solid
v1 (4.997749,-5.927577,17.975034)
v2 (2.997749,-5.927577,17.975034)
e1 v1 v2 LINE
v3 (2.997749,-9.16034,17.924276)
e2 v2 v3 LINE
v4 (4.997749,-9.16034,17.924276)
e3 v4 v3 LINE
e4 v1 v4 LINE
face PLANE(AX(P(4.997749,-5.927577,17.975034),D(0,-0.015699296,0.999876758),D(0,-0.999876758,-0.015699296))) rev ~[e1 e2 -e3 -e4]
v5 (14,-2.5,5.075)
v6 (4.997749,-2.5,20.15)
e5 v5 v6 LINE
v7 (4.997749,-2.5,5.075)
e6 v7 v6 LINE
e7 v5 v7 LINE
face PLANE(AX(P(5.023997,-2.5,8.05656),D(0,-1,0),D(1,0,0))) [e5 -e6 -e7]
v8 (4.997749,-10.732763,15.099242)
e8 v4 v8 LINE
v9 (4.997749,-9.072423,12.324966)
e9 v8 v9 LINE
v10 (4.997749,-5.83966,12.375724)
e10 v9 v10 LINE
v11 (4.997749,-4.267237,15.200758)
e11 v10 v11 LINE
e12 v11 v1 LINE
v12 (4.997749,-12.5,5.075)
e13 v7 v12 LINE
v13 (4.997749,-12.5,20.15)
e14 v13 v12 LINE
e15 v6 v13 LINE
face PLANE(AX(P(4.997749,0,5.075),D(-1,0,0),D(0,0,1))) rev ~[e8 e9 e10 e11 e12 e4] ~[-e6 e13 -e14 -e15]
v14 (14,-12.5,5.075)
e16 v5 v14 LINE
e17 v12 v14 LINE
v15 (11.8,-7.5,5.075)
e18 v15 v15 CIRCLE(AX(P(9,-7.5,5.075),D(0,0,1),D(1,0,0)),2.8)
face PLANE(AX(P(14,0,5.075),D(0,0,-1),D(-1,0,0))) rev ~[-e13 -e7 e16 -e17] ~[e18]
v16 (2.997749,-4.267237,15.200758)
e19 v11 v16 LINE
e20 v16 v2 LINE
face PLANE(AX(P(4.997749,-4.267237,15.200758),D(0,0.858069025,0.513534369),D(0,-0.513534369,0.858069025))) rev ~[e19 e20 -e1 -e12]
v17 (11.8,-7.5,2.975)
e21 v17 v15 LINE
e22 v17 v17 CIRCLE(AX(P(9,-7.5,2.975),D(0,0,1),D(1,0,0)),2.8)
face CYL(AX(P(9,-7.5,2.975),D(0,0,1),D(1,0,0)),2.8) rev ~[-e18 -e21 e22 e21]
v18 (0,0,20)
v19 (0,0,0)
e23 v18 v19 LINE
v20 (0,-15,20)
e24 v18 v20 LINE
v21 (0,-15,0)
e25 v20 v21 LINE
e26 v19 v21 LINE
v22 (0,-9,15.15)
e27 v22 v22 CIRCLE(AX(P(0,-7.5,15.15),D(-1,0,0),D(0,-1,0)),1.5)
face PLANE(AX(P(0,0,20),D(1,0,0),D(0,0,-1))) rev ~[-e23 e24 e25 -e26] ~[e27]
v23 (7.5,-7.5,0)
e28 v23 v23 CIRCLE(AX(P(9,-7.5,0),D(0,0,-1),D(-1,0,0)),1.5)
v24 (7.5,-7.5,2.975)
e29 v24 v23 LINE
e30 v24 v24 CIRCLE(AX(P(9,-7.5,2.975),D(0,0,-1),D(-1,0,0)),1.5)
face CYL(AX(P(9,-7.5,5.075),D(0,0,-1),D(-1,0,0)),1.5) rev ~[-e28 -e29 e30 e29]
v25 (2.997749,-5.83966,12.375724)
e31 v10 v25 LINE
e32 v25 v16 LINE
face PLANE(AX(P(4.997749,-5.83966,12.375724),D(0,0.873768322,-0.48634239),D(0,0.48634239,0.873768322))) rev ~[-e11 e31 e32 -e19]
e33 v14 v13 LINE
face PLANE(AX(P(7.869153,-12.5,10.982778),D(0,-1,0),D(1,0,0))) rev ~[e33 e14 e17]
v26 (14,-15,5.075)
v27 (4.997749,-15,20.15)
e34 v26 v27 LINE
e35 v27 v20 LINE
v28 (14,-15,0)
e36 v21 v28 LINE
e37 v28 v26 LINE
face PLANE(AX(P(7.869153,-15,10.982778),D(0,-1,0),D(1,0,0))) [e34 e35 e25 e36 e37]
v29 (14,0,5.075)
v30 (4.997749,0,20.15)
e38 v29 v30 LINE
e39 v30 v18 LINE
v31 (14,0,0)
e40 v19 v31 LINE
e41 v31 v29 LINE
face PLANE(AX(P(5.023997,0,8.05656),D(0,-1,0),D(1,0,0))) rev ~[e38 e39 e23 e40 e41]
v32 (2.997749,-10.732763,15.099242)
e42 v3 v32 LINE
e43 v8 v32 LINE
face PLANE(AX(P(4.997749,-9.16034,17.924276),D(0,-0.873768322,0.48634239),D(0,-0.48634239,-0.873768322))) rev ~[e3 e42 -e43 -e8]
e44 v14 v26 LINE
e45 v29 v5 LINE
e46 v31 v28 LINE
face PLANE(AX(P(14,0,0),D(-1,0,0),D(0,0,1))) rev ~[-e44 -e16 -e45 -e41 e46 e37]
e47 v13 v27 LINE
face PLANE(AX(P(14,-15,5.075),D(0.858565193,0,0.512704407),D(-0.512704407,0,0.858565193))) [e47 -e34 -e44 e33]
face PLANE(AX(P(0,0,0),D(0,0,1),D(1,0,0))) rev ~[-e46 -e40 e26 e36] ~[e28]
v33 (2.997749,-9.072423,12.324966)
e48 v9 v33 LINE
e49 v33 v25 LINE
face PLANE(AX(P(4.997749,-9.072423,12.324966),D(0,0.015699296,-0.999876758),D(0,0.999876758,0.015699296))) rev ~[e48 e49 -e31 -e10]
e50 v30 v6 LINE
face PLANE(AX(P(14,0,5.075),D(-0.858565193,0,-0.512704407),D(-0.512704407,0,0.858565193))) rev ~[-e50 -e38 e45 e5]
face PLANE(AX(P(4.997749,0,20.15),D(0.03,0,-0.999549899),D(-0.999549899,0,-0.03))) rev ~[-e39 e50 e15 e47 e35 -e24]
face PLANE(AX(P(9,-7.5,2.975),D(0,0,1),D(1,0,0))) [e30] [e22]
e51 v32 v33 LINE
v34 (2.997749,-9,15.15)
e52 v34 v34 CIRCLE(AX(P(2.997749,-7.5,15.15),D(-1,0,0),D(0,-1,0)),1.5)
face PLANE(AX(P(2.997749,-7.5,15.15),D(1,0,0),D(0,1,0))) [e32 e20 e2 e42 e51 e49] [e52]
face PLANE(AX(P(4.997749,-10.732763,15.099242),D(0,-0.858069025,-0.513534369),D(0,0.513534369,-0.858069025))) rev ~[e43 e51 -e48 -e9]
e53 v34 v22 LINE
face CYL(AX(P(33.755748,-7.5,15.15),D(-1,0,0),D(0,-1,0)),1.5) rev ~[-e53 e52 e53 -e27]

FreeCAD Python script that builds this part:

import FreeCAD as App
import Part
import Sketcher

V = App.Vector

doc = App.newDocument("Part")
body = doc.addObject("PartDesign::Body", "Body")

sketch1 = body.newObject("Sketcher::SketchObject", "Sketch")
sketch1.AttachmentSupport = (doc.getObject("XZ_Plane"), [""])
sketch1.MapMode = "FlatFace"
sketch1.addGeometry([
    Part.LineSegment(V(5, 20.1, 0), V(0, 20, 0)),
    Part.LineSegment(V(0, 20, 0), V(0, 0, 0)),
    Part.LineSegment(V(0, 0, 0), V(14, 0, 0)),
    Part.LineSegment(V(14, 0, 0), V(14, 5.1, 0)),
    Part.LineSegment(V(14, 5.1, 0), V(5, 5.1, 0)),
    Part.LineSegment(V(5, 5.1, 0), V(5, 20.1, 0)),
], False)
sketch1.addConstraint([
    Sketcher.Constraint("Coincident", 0, 2, 1, 1),
    Sketcher.Constraint("Coincident", 1, 2, 2, 1),
    Sketcher.Constraint("Coincident", 2, 2, 3, 1),
    Sketcher.Constraint("Coincident", 3, 2, 4, 1),
    Sketcher.Constraint("Coincident", 4, 2, 5, 1),
    Sketcher.Constraint("Coincident", 5, 2, 0, 1),
    Sketcher.Constraint("Vertical", 1),
    Sketcher.Constraint("Horizontal", 2),
    Sketcher.Constraint("Vertical", 3),
    Sketcher.Constraint("Horizontal", 4),
    Sketcher.Constraint("Vertical", 5),
    Sketcher.Constraint("Coincident", 1, 2, -1, 1),
    Sketcher.Constraint("DistanceX", 2, 1, 2, 2, 14.0),
    Sketcher.Constraint("DistanceY", 1, 2, 1, 1, 20.0),
    Sketcher.Constraint("Distance", 0, 5.0),
    Sketcher.Constraint("DistanceY", 3, 1, 3, 2, 5.075),
    Sketcher.Constraint("DistanceY", 5, 1, 5, 2, 15.075),
])
pad1 = body.newObject("PartDesign::Pad", "Pad")
pad1.Profile = sketch1
pad1.Length = 15

sketch2 = body.newObject("Sketcher::SketchObject", "Sketch001")
sketch2.AttachmentSupport = (doc.getObject("XZ_Plane"), [""])
sketch2.MapMode = "FlatFace"
sketch2.addGeometry([
    Part.LineSegment(V(5, 20.1, 0), V(0, 20, 0)),
    Part.LineSegment(V(0, 20, 0), V(0, 0, 0)),
    Part.LineSegment(V(0, 0, 0), V(14, 0, 0)),
    Part.LineSegment(V(14, 0, 0), V(14, 5.1, 0)),
    Part.LineSegment(V(14, 5.1, 0), V(5, 20.1, 0)),
], False)
sketch2.addConstraint([
    Sketcher.Constraint("Coincident", 0, 2, 1, 1),
    Sketcher.Constraint("Coincident", 1, 2, 2, 1),
    Sketcher.Constraint("Coincident", 2, 2, 3, 1),
    Sketcher.Constraint("Coincident", 3, 2, 4, 1),
    Sketcher.Constraint("Coincident", 4, 2, 0, 1),
    Sketcher.Constraint("Vertical", 1),
    Sketcher.Constraint("Horizontal", 2),
    Sketcher.Constraint("Vertical", 3),
    Sketcher.Constraint("Coincident", 1, 2, -1, 1),
    Sketcher.Constraint("DistanceX", 2, 1, 2, 2, 14.0),
    Sketcher.Constraint("DistanceY", 1, 2, 1, 1, 20.0),
    Sketcher.Constraint("Distance", 0, 5.0),
    Sketcher.Constraint("DistanceY", 3, 1, 3, 2, 5.075),
    Sketcher.Constraint("DistanceY", -1, 1, 4, 2, 20.15),
])
pad2 = body.newObject("PartDesign::Pad", "Pad001")
pad2.Profile = sketch2
pad2.Length = 2.5

sketch3 = body.newObject("Sketcher::SketchObject", "Sketch002")
sketch3.AttachmentSupport = (doc.getObject("XZ_Plane"), [""])
sketch3.MapMode = "FlatFace"
sketch3.AttachmentOffset = App.Placement(V(0, 0, 15), App.Rotation())
sketch3.addGeometry([
    Part.LineSegment(V(14, 5, 0), V(5, 20, 0)),
    Part.LineSegment(V(5, 20, 0), V(5, 5, 0)),
    Part.LineSegment(V(5, 5, 0), V(14, 5, 0)),
], False)
sketch3.addConstraint([
    Sketcher.Constraint("Coincident", 0, 2, 1, 1),
    Sketcher.Constraint("Coincident", 1, 2, 2, 1),
    Sketcher.Constraint("Coincident", 2, 2, 0, 1),
    Sketcher.Constraint("Vertical", 1),
    Sketcher.Constraint("Horizontal", 2),
    Sketcher.Constraint("DistanceX", -1, 1, 2, 2, 14.0),
    Sketcher.Constraint("DistanceY", 1, 2, 1, 1, 15.075),
    Sketcher.Constraint("DistanceY", -1, 1, 0, 2, 20.15),
    Sketcher.Constraint("DistanceX", 2, 1, 2, 2, 9.002251),
])
pad3 = body.newObject("PartDesign::Pad", "Pad002")
pad3.Profile = sketch3
pad3.Length = 2.5
pad3.Reversed = True

sketch4 = body.newObject("Sketcher::SketchObject", "Sketch003")
sketch4.AttachmentSupport = (doc.getObject("XY_Plane"), [""])
sketch4.MapMode = "FlatFace"
sketch4.AttachmentOffset = App.Placement(V(0, 0, 5.075), App.Rotation())
sketch4.addGeometry(Part.Circle(V(9, -7.5, 0), V(0, 0, 1), 1.5), False)
sketch4.addConstraint([
    Sketcher.Constraint("Diameter", 0, 3.0),
    Sketcher.Constraint("DistanceX", -1, 1, 0, 3, 9.0),
    Sketcher.Constraint("DistanceY", 0, 3, -1, 1, 7.5),
])
doc.recompute()
hole = body.newObject("PartDesign::Hole", "Hole")
hole.Profile = sketch4
hole.ThreadType = "None"
hole.Diameter = 3
hole.DepthType = "ThroughAll"
hole.HoleCutType = "Counterbore"
hole.HoleCutDiameter = 5.6
hole.HoleCutDepth = 2.1

sketch5 = body.newObject("Sketcher::SketchObject", "Sketch004")
sketch5.AttachmentSupport = (doc.getObject("YZ_Plane"), [""])
sketch5.MapMode = "FlatFace"
sketch5.AttachmentOffset = App.Placement(V(0, 0, 4.997749), App.Rotation())
sketch5.addGeometry(Part.Circle(V(-7.5, 15.2, 0), V(0, 0, 1), 1.5), False)
sketch5.addConstraint([
    Sketcher.Constraint("Diameter", 0, 3.0),
    Sketcher.Constraint("DistanceX", 0, 3, -1, 1, 7.5),
    Sketcher.Constraint("DistanceY", -1, 1, 0, 3, 15.15),
])
doc.recompute()
hole2 = body.newObject("PartDesign::Hole", "Hole001")
hole2.Profile = sketch5
hole2.ThreadType = "None"
hole2.Diameter = 3
hole2.DepthType = "ThroughAll"

sketch6 = body.newObject("Sketcher::SketchObject", "Sketch005")
sketch6.AttachmentSupport = (doc.getObject("YZ_Plane"), [""])
sketch6.MapMode = "FlatFace"
sketch6.AttachmentOffset = App.Placement(V(0, 0, 4.997749), App.Rotation())
sketch6.addGeometry([
    Part.LineSegment(V(-9.2, 17.9, 0), V(-10.7, 15.1, 0)),
    Part.LineSegment(V(-10.7, 15.1, 0), V(-9.1, 12.3, 0)),
    Part.LineSegment(V(-9.1, 12.3, 0), V(-5.8, 12.4, 0)),
    Part.LineSegment(V(-5.8, 12.4, 0), V(-4.3, 15.2, 0)),
    Part.LineSegment(V(-4.3, 15.2, 0), V(-5.9, 18, 0)),
    Part.LineSegment(V(-5.9, 18, 0), V(-9.2, 17.9, 0)),
], False)
sketch6.addConstraint([
    Sketcher.Constraint("Coincident", 0, 2, 1, 1),
    Sketcher.Constraint("Coincident", 1, 2, 2, 1),
    Sketcher.Constraint("Coincident", 2, 2, 3, 1),
    Sketcher.Constraint("Coincident", 3, 2, 4, 1),
    Sketcher.Constraint("Coincident", 4, 2, 5, 1),
    Sketcher.Constraint("Coincident", 5, 2, 0, 1),
    Sketcher.Constraint("Parallel", 0, 3),
    Sketcher.Constraint("Parallel", 1, 4),
    Sketcher.Constraint("Parallel", 2, 5),
    Sketcher.Constraint("Equal", 0, 1),
    Sketcher.Constraint("Equal", 1, 2),
    Sketcher.Constraint("Equal", 2, 3),
    Sketcher.Constraint("Distance", 0, 3.233162),
    Sketcher.Constraint("DistanceY", -1, 1, 0, 2, 15.099242),
    Sketcher.Constraint("DistanceX", 2, 2, -1, 1, 5.83966),
    Sketcher.Constraint("DistanceY", -1, 1, 3, 2, 15.200758),
    Sketcher.Constraint("DistanceX", 5, 2, -1, 1, 9.16034),
    Sketcher.Constraint("DistanceX", 0, 2, 1, 2, 1.66034),
])
pocket1 = body.newObject("PartDesign::Pocket", "Pocket")
pocket1.Profile = sketch6
pocket1.Length = 2

doc.recompute()
